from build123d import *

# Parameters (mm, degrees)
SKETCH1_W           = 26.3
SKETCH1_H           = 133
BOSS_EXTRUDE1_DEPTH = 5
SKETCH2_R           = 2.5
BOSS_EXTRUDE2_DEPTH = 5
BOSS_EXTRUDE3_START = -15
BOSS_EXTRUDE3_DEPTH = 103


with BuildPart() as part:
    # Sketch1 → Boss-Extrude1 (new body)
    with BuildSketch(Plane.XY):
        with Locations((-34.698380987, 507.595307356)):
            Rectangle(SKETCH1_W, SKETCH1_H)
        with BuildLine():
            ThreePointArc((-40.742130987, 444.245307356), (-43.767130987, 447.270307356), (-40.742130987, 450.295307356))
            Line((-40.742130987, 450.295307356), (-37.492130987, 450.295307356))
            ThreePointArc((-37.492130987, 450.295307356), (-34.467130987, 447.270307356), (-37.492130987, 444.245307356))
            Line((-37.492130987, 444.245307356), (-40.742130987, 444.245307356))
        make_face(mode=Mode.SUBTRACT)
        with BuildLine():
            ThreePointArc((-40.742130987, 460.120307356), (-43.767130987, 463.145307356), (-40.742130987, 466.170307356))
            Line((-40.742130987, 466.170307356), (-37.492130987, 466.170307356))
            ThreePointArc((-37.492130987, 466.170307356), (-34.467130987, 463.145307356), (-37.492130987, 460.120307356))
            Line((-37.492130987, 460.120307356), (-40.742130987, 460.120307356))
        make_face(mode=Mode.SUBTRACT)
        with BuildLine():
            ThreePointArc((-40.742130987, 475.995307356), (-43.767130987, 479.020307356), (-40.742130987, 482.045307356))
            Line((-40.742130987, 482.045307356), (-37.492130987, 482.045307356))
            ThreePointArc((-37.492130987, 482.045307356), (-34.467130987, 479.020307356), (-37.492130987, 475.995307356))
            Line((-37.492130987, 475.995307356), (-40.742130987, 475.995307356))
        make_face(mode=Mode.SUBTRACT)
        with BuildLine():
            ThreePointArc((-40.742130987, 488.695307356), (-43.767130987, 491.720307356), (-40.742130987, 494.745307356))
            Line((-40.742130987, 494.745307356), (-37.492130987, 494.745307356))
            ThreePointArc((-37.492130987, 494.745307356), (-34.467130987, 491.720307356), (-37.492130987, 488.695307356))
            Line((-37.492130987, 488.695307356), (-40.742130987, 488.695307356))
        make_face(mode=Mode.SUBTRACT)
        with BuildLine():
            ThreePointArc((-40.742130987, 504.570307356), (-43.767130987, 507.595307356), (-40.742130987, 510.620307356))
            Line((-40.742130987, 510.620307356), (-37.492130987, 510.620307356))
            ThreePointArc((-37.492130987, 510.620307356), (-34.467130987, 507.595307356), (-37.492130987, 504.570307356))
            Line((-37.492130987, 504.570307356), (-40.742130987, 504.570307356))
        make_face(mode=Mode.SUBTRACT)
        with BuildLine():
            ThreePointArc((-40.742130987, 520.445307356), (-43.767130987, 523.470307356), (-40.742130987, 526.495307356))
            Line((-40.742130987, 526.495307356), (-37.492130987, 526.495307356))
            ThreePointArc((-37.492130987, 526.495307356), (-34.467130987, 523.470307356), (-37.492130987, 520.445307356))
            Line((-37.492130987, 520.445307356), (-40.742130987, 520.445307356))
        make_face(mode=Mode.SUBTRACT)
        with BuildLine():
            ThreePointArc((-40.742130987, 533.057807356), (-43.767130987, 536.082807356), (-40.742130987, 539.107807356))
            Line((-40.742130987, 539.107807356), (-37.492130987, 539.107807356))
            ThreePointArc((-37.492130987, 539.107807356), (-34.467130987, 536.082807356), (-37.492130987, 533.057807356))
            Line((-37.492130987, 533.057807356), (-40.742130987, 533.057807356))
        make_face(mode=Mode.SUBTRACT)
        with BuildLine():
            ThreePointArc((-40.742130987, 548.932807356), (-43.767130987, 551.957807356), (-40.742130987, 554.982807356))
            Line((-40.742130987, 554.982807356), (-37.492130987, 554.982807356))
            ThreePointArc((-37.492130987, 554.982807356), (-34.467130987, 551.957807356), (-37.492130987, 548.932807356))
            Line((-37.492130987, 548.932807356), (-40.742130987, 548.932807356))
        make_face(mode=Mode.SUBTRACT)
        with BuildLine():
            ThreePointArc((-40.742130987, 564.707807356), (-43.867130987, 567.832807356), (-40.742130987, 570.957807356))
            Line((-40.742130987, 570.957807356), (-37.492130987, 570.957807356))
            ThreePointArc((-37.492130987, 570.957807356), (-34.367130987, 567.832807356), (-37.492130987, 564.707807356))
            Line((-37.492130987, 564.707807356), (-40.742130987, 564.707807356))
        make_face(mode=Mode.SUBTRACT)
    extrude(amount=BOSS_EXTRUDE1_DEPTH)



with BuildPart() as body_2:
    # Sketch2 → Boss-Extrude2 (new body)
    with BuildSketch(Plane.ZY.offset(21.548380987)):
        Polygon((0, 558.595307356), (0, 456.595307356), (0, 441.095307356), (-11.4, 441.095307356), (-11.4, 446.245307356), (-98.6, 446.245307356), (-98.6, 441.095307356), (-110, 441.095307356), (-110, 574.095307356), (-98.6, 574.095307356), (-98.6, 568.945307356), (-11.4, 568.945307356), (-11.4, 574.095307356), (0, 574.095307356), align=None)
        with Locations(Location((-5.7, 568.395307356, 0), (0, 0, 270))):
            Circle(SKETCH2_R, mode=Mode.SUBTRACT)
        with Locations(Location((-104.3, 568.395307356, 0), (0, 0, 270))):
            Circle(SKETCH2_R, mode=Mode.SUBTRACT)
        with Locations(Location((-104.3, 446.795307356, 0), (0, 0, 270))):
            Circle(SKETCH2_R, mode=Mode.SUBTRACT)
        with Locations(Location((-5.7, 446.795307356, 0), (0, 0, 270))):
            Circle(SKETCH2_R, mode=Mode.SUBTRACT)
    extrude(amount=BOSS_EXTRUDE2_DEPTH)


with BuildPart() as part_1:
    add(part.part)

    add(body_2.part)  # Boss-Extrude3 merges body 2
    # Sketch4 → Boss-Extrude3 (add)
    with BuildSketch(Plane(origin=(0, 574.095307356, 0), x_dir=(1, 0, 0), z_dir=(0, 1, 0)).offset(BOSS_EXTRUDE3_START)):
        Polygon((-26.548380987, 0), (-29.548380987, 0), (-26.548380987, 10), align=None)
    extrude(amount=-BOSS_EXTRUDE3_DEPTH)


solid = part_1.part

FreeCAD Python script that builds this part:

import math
import FreeCAD as App
import Part
import Sketcher

V = App.Vector
Q = App.Units.Quantity


def add_polygon(sketch, points):
    """Adds a closed chain of lines whose ends are joined by coincident constraints."""
    first, n = sketch.GeometryCount, len(points)
    for a, b in zip(points, points[1:] + points[:1]):
        sketch.addGeometry(Part.LineSegment(App.Vector(*a, 0), App.Vector(*b, 0)), False)
    for i in range(n):
        sketch.addConstraint(Sketcher.Constraint("Coincident", first + i, 2, first + (i + 1) % n, 1))

doc = App.newDocument("Part")
body = doc.addObject("PartDesign::Body", "Body")

# Sketch on XY plane
sketch1 = body.newObject("Sketcher::SketchObject", "Sketch")
sketch1.AttachmentSupport = (doc.getObject("XY_Plane"), [""])
sketch1.MapMode = "FlatFace"
add_polygon(sketch1, [(-47.848381, 574.095307), (-47.848381, 441.095307), (-21.548381, 441.095307), (-21.548381, 574.095307)])  # lines 0-3
sketch1.addGeometry(Part.LineSegment(V(-37.492131, 444.245307, 0), V(-40.742131, 444.245307, 0)), False)  # 4
sketch1.addGeometry(Part.ArcOfCircle(Part.Circle(V(-40.742131, 447.270307, 0), V(0, 0, 1), 3.025), math.radians(90), math.radians(270)), False)  # 5
sketch1.addGeometry(Part.LineSegment(V(-40.742131, 450.295307, 0), V(-37.492131, 450.295307, 0)), False)  # 6
sketch1.addGeometry(Part.ArcOfCircle(Part.Circle(V(-37.492131, 447.270307, 0), V(0, 0, 1), 3.025), math.radians(-90), math.radians(90)), False)  # 7
sketch1.addGeometry(Part.LineSegment(V(-37.492131, 460.120307, 0), V(-40.742131, 460.120307, 0)), False)  # 8
sketch1.addGeometry(Part.ArcOfCircle(Part.Circle(V(-40.742131, 463.145307, 0), V(0, 0, 1), 3.025), math.radians(90), math.radians(270)), False)  # 9
sketch1.addGeometry(Part.LineSegment(V(-40.742131, 466.170307, 0), V(-37.492131, 466.170307, 0)), False)  # 10
sketch1.addGeometry(Part.ArcOfCircle(Part.Circle(V(-37.492131, 463.145307, 0), V(0, 0, 1), 3.025), math.radians(-90), math.radians(90)), False)  # 11
sketch1.addGeometry(Part.LineSegment(V(-37.492131, 475.995307, 0), V(-40.742131, 475.995307, 0)), False)  # 12
sketch1.addGeometry(Part.ArcOfCircle(Part.Circle(V(-40.742131, 479.020307, 0), V(0, 0, 1), 3.025), math.radians(90), math.radians(270)), False)  # 13
sketch1.addGeometry(Part.LineSegment(V(-40.742131, 482.045307, 0), V(-37.492131, 482.045307, 0)), False)  # 14
sketch1.addGeometry(Part.ArcOfCircle(Part.Circle(V(-37.492131, 479.020307, 0), V(0, 0, 1), 3.025), math.radians(-90), math.radians(90)), False)  # 15
sketch1.addGeometry(Part.LineSegment(V(-37.492131, 488.695307, 0), V(-40.742131, 488.695307, 0)), False)  # 16
sketch1.addGeometry(Part.ArcOfCircle(Part.Circle(V(-40.742131, 491.720307, 0), V(0, 0, 1), 3.025), math.radians(90), math.radians(270)), False)  # 17
sketch1.addGeometry(Part.LineSegment(V(-40.742131, 494.745307, 0), V(-37.492131, 494.745307, 0)), False)  # 18
sketch1.addGeometry(Part.ArcOfCircle(Part.Circle(V(-37.492131, 491.720307, 0), V(0, 0, 1), 3.025), math.radians(-90), math.radians(90)), False)  # 19
sketch1.addGeometry(Part.LineSegment(V(-37.492131, 504.570307, 0), V(-40.742131, 504.570307, 0)), False)  # 20
sketch1.addGeometry(Part.ArcOfCircle(Part.Circle(V(-40.742131, 507.595307, 0), V(0, 0, 1), 3.025), math.radians(90), math.radians(270)), False)  # 21
sketch1.addGeometry(Part.LineSegment(V(-40.742131, 510.620307, 0), V(-37.492131, 510.620307, 0)), False)  # 22
sketch1.addGeometry(Part.ArcOfCircle(Part.Circle(V(-37.492131, 507.595307, 0), V(0, 0, 1), 3.025), math.radians(-90), math.radians(90)), False)  # 23
sketch1.addGeometry(Part.LineSegment(V(-37.492131, 520.445307, 0), V(-40.742131, 520.445307, 0)), False)  # 24
sketch1.addGeometry(Part.ArcOfCircle(Part.Circle(V(-40.742131, 523.470307, 0), V(0, 0, 1), 3.025), math.radians(90), math.radians(270)), False)  # 25
sketch1.addGeometry(Part.LineSegment(V(-40.742131, 526.495307, 0), V(-37.492131, 526.495307, 0)), False)  # 26
sketch1.addGeometry(Part.ArcOfCircle(Part.Circle(V(-37.492131, 523.470307, 0), V(0, 0, 1), 3.025), math.radians(-90), math.radians(90)), False)  # 27
sketch1.addGeometry(Part.LineSegment(V(-37.492131, 533.057807, 0), V(-40.742131, 533.057807, 0)), False)  # 28
sketch1.addGeometry(Part.ArcOfCircle(Part.Circle(V(-40.742131, 536.082807, 0), V(0, 0, 1), 3.025), math.radians(90), math.radians(270)), False)  # 29
sketch1.addGeometry(Part.LineSegment(V(-40.742131, 539.107807, 0), V(-37.492131, 539.107807, 0)), False)  # 30
sketch1.addGeometry(Part.ArcOfCircle(Part.Circle(V(-37.492131, 536.082807, 0), V(0, 0, 1), 3.025), math.radians(-90), math.radians(90)), False)  # 31
sketch1.addGeometry(Part.LineSegment(V(-37.492131, 548.932807, 0), V(-40.742131, 548.932807, 0)), False)  # 32
sketch1.addGeometry(Part.ArcOfCircle(Part.Circle(V(-40.742131, 551.957807, 0), V(0, 0, 1), 3.025), math.radians(90), math.radians(270)), False)  # 33
sketch1.addGeometry(Part.LineSegment(V(-40.742131, 554.982807, 0), V(-37.492131, 554.982807, 0)), False)  # 34
sketch1.addGeometry(Part.ArcOfCircle(Part.Circle(V(-37.492131, 551.957807, 0), V(0, 0, 1), 3.025), math.radians(-90), math.radians(90)), False)  # 35
sketch1.addGeometry(Part.LineSegment(V(-37.492131, 564.707807, 0), V(-40.742131, 564.707807, 0)), False)  # 36
sketch1.addGeometry(Part.ArcOfCircle(Part.Circle(V(-40.742131, 567.832807, 0), V(0, 0, 1), 3.125), math.radians(90), math.radians(270)), False)  # 37
sketch1.addGeometry(Part.LineSegment(V(-40.742131, 570.957807, 0), V(-37.492131, 570.957807, 0)), False)  # 38
sketch1.addGeometry(Part.ArcOfCircle(Part.Circle(V(-37.492131, 567.832807, 0), V(0, 0, 1), 3.125), math.radians(-90), math.radians(90)), False)  # 39
sketch1.addConstraint(Sketcher.Constraint("Tangent", 4, 2, 5, 2))
sketch1.addConstraint(Sketcher.Constraint("Tangent", 5, 1, 6, 1))
sketch1.addConstraint(Sketcher.Constraint("Tangent", 6, 2, 7, 2))
sketch1.addConstraint(Sketcher.Constraint("Tangent", 7, 1, 4, 1))
sketch1.addConstraint(Sketcher.Constraint("Tangent", 8, 2, 9, 2))
sketch1.addConstraint(Sketcher.Constraint("Tangent", 9, 1, 10, 1))
sketch1.addConstraint(Sketcher.Constraint("Tangent", 10, 2, 11, 2))
sketch1.addConstraint(Sketcher.Constraint("Tangent", 11, 1, 8, 1))
sketch1.addConstraint(Sketcher.Constraint("Tangent", 12, 2, 13, 2))
sketch1.addConstraint(Sketcher.Constraint("Tangent", 13, 1, 14, 1))
sketch1.addConstraint(Sketcher.Constraint("Tangent", 14, 2, 15, 2))
sketch1.addConstraint(Sketcher.Constraint("Tangent", 15, 1, 12, 1))
sketch1.addConstraint(Sketcher.Constraint("Tangent", 16, 2, 17, 2))
sketch1.addConstraint(Sketcher.Constraint("Tangent", 17, 1, 18, 1))
sketch1.addConstraint(Sketcher.Constraint("Tangent", 18, 2, 19, 2))
sketch1.addConstraint(Sketcher.Constraint("Tangent", 19, 1, 16, 1))
sketch1.addConstraint(Sketcher.Constraint("Tangent", 20, 2, 21, 2))
sketch1.addConstraint(Sketcher.Constraint("Tangent", 21, 1, 22, 1))
sketch1.addConstraint(Sketcher.Constraint("Tangent", 22, 2, 23, 2))
sketch1.addConstraint(Sketcher.Constraint("Tangent", 23, 1, 20, 1))
sketch1.addConstraint(Sketcher.Constraint("Tangent", 24, 2, 25, 2))
sketch1.addConstraint(Sketcher.Constraint("Tangent", 25, 1, 26, 1))
sketch1.addConstraint(Sketcher.Constraint("Tangent", 26, 2, 27, 2))
sketch1.addConstraint(Sketcher.Constraint("Tangent", 27, 1, 24, 1))
sketch1.addConstraint(Sketcher.Constraint("Tangent", 28, 2, 29, 2))
sketch1.addConstraint(Sketcher.Constraint("Tangent", 29, 1, 30, 1))
sketch1.addConstraint(Sketcher.Constraint("Tangent", 30, 2, 31, 2))
sketch1.addConstraint(Sketcher.Constraint("Tangent", 31, 1, 28, 1))
sketch1.addConstraint(Sketcher.Constraint("Tangent", 32, 2, 33, 2))
sketch1.addConstraint(Sketcher.Constraint("Tangent", 33, 1, 34, 1))
sketch1.addConstraint(Sketcher.Constraint("Tangent", 34, 2, 35, 2))
sketch1.addConstraint(Sketcher.Constraint("Tangent", 35, 1, 32, 1))
sketch1.addConstraint(Sketcher.Constraint("Tangent", 36, 2, 37, 2))
sketch1.addConstraint(Sketcher.Constraint("Tangent", 37, 1, 38, 1))
sketch1.addConstraint(Sketcher.Constraint("Tangent", 38, 2, 39, 2))
sketch1.addConstraint(Sketcher.Constraint("Tangent", 39, 1, 36, 1))
sketch1.addConstraint(Sketcher.Constraint("Vertical", 0))
sketch1.addConstraint(Sketcher.Constraint("Horizontal", 1))
sketch1.addConstraint(Sketcher.Constraint("Vertical", 2))
sketch1.addConstraint(Sketcher.Constraint("Horizontal", 3))
sketch1.addConstraint(Sketcher.Constraint("Horizontal", 4))
sketch1.addConstraint(Sketcher.Constraint("Horizontal", 6))
sketch1.addConstraint(Sketcher.Constraint("Horizontal", 8))
sketch1.addConstraint(Sketcher.Constraint("Horizontal", 10))
sketch1.addConstraint(Sketcher.Constraint("Horizontal", 12))
sketch1.addConstraint(Sketcher.Constraint("Horizontal", 14))
sketch1.addConstraint(Sketcher.Constraint("Horizontal", 16))
sketch1.addConstraint(Sketcher.Constraint("Horizontal", 18))
sketch1.addConstraint(Sketcher.Constraint("Horizontal", 20))
sketch1.addConstraint(Sketcher.Constraint("Horizontal", 22))
sketch1.addConstraint(Sketcher.Constraint("Horizontal", 24))
sketch1.addConstraint(Sketcher.Constraint("Horizontal", 26))
sketch1.addConstraint(Sketcher.Constraint("Horizontal", 28))
sketch1.addConstraint(Sketcher.Constraint("Horizontal", 30))
sketch1.addConstraint(Sketcher.Constraint("Horizontal", 32))
sketch1.addConstraint(Sketcher.Constraint("Horizontal", 34))
sketch1.addConstraint(Sketcher.Constraint("Horizontal", 36))
sketch1.addConstraint(Sketcher.Constraint("Horizontal", 38))
sketch1.addConstraint(Sketcher.Constraint("Equal", 7, 9))
sketch1.addConstraint(Sketcher.Constraint("Equal", 11, 13))
sketch1.addConstraint(Sketcher.Constraint("Equal", 15, 17))
sketch1.addConstraint(Sketcher.Constraint("Equal", 19, 21))
sketch1.addConstraint(Sketcher.Constraint("Equal", 23, 25))
sketch1.addConstraint(Sketcher.Constraint("Equal", 27, 29))
sketch1.addConstraint(Sketcher.Constraint("Equal", 31, 33))
sketch1.addConstraint(Sketcher.Constraint("Vertical", 5, 3, 9, 3))
sketch1.addConstraint(Sketcher.Constraint("Vertical", 7, 3, 11, 3))
sketch1.addConstraint(Sketcher.Constraint("Vertical", 9, 3, 13, 3))
sketch1.addConstraint(Sketcher.Constraint("Vertical", 11, 3, 15, 3))
sketch1.addConstraint(Sketcher.Constraint("Vertical", 13, 3, 17, 3))
sketch1.addConstraint(Sketcher.Constraint("Vertical", 15, 3, 19, 3))
sketch1.addConstraint(Sketcher.Constraint("Vertical", 17, 3, 21, 3))
sketch1.addConstraint(Sketcher.Constraint("Vertical", 19, 3, 23, 3))
sketch1.addConstraint(Sketcher.Constraint("Vertical", 21, 3, 25, 3))
sketch1.addConstraint(Sketcher.Constraint("Vertical", 23, 3, 27, 3))
sketch1.addConstraint(Sketcher.Constraint("Vertical", 25, 3, 29, 3))
sketch1.addConstraint(Sketcher.Constraint("Vertical", 27, 3, 31, 3))
sketch1.addConstraint(Sketcher.Constraint("Vertical", 29, 3, 33, 3))
sketch1.addConstraint(Sketcher.Constraint("Vertical", 31, 3, 35, 3))
sketch1.addConstraint(Sketcher.Constraint("Vertical", 33, 3, 37, 3))
sketch1.addConstraint(Sketcher.Constraint("Vertical", 35, 3, 39, 3))
sketch1.addConstraint(Sketcher.Constraint("DistanceY", 0, 2, 0, 1, Q("133 mm")))
sketch1.addConstraint(Sketcher.Constraint("DistanceX", 1, 1, 1, 2, Q("26.3 mm")))
sketch1.addConstraint(Sketcher.Constraint("Radius", 5, Q("3.025 mm")))
sketch1.addConstraint(Sketcher.Constraint("Radius", 37, Q("3.125 mm")))
sketch1.addConstraint(Sketcher.Constraint("DistanceX", 4, 2, 4, 1, Q("3.25 mm")))
sketch1.addConstraint(Sketcher.Constraint("DistanceY", 13, 3, 17, 3, Q("12.7 mm")))
sketch1.addConstraint(Sketcher.Constraint("DistanceY", 4, 2, 9, 3, Q("18.9 mm")))
sketch1.addConstraint(Sketcher.Constraint("DistanceY", 0, 2, 5, 1, Q("9.2 mm")))
sketch1.addConstraint(Sketcher.Constraint("DistanceY", 5, 3, 13, 3, Q("31.75 mm")))
sketch1.addConstraint(Sketcher.Constraint("DistanceY", 9, 3, 21, 3, Q("44.45 mm")))
sketch1.addConstraint(Sketcher.Constraint("DistanceY", 17, 3, 25, 3, Q("31.75 mm")))
sketch1.addConstraint(Sketcher.Constraint("DistanceY", 29, 3, 37, 3, Q("31.75 mm")))
sketch1.addConstraint(Sketcher.Constraint("DistanceY", 29, 1, 33, 3, Q("12.85 mm")))
sketch1.addConstraint(Sketcher.Constraint("DistanceY", 25, 3, 29, 3, Q("12.6125 mm")))
sketch1.addConstraint(Sketcher.Constraint("DistanceX", 5, 3, -1, 1, Q("40.742131 mm")))
sketch1.addConstraint(Sketcher.Constraint("DistanceX", 0, 2, -1, 1, Q("47.848381 mm")))
sketch1.addConstraint(Sketcher.Constraint("DistanceY", -1, 1, 5, 3, Q("447.270307 mm")))
pad1 = body.newObject("PartDesign::Pad", "Pad")
pad1.Profile = sketch1
pad1.Length = 5
body2 = doc.addObject("PartDesign::Body", "Body001")

# Sketch on YZ plane
sketch2 = body2.newObject("Sketcher::SketchObject", "Sketch001")
sketch2.AttachmentSupport = (doc.getObject("YZ_Plane001"), [""])
sketch2.MapMode = "FlatFace"
sketch2.AttachmentOffset = App.Placement(V(0, 0, -21.548381), App.Rotation())
add_polygon(sketch2, [(441.095307, 0), (574.095307, 0), (574.095307, -11.4), (568.945307, -11.4), (568.945307, -98.6), (574.095307, -98.6), (574.095307, -110), (441.095307, -110), (441.095307, -98.6), (446.245307, -98.6), (446.245307, -11.4), (441.095307, -11.4)])  # lines 0-11
sketch2.addGeometry(Part.Circle(V(446.795307, -5.7, 0), V(0, 0, 1), 2.5), False)  # 12
sketch2.addGeometry(Part.Circle(V(446.795307, -104.3, 0), V(0, 0, 1), 2.5), False)  # 13
sketch2.addGeometry(Part.Circle(V(568.395307, -5.7, 0), V(0, 0, 1), 2.5), False)  # 14
sketch2.addGeometry(Part.Circle(V(568.395307, -104.3, 0), V(0, 0, 1), 2.5), False)  # 15
sketch2.addConstraint(Sketcher.Constraint("Horizontal", 0))
sketch2.addConstraint(Sketcher.Constraint("Vertical", 1))
sketch2.addConstraint(Sketcher.Constraint("Horizontal", 2))
sketch2.addConstraint(Sketcher.Constraint("Vertical", 3))
sketch2.addConstraint(Sketcher.Constraint("Horizontal", 4))
sketch2.addConstraint(Sketcher.Constraint("Vertical", 5))
sketch2.addConstraint(Sketcher.Constraint("Horizontal", 6))
sketch2.addConstraint(Sketcher.Constraint("Vertical", 7))
sketch2.addConstraint(Sketcher.Constraint("Horizontal", 8))
sketch2.addConstraint(Sketcher.Constraint("Vertical", 9))
sketch2.addConstraint(Sketcher.Constraint("Horizontal", 10))
sketch2.addConstraint(Sketcher.Constraint("Vertical", 11))
sketch2.addConstraint(Sketcher.Constraint("Equal", 12, 13))
sketch2.addConstraint(Sketcher.Constraint("Equal", 13, 14))
sketch2.addConstraint(Sketcher.Constraint("Equal", 14, 15))
sketch2.addConstraint(Sketcher.Constraint("PointOnObject", 0, 2, -1))
sketch2.addConstraint(Sketcher.Constraint("Horizontal", 12, 3, 14, 3))
sketch2.addConstraint(Sketcher.Constraint("Horizontal", 13, 3, 15, 3))
sketch2.addConstraint(Sketcher.Constraint("Horizontal", 4, 2, 7, 2))
sketch2.addConstraint(Sketcher.Constraint("Horizontal", 2, 2, 9, 2))
sketch2.addConstraint(Sketcher.Constraint("Vertical", 12, 3, 13, 3))
sketch2.addConstraint(Sketcher.Constraint("Vertical", 14, 3, 15, 3))
sketch2.addConstraint(Sketcher.Constraint("Vertical", 1, 2, 4, 2))
sketch2.addConstraint(Sketcher.Constraint("Vertical", 7, 2, 10, 2))
sketch2.addConstraint(Sketcher.Constraint("Equal", 4, 8))
sketch2.addConstraint(Sketcher.Constraint("Equal", 1, 5))
sketch2.addConstraint(Sketcher.Constraint("Diameter", 12, Q("5 mm")))
sketch2.addConstraint(Sketcher.Constraint("DistanceX", 0, 1, 0, 2, Q("133 mm")))
sketch2.addConstraint(Sketcher.Constraint("DistanceY", 1, 2, 1, 1, Q("11.4 mm")))
sketch2.addConstraint(Sketcher.Constraint("DistanceY", 3, 2, 3, 1, Q("87.2 mm")))
sketch2.addConstraint(Sketcher.Constraint("DistanceX", 2, 2, 2, 1, Q("5.15 mm")))
sketch2.addConstraint(Sketcher.Constraint("DistanceY", 12, 3, -1, 1, Q("5.7 mm")))
sketch2.addConstraint(Sketcher.Constraint("DistanceY", 13, 3, -1, 1, Q("104.3 mm")))
sketch2.addConstraint(Sketcher.Constraint("DistanceX", 12, 3, 14, 3, Q("121.6 mm")))
sketch2.addConstraint(Sketcher.Constraint("DistanceX", 14, 3, 0, 2, Q("5.7 mm")))
sketch2.addConstraint(Sketcher.Constraint("DistanceX", -1, 1, 12, 3, Q("446.795307 mm")))
pad2 = body2.newObject("PartDesign::Pad", "Pad001")
pad2.Profile = sketch2
pad2.Length = 5
pad2.Reversed = True
doc.recompute()

boolean = body.newObject("PartDesign::Boolean", "Boolean")
boolean.Type = "Fuse"
boolean.addObjects([body2])

# Sketch on XZ plane
sketch3 = body.newObject("Sketcher::SketchObject", "Sketch002")
sketch3.AttachmentSupport = (doc.getObject("XZ_Plane"), [""])
sketch3.MapMode = "FlatFace"
sketch3.AttachmentOffset = App.Placement(V(0, 0, -559.095307), App.Rotation())
add_polygon(sketch3, [(-29.548381, 0), (-26.548381, 0), (-26.548381, -10)])  # lines 0-2
sketch3.addConstraint(Sketcher.Constraint("Horizontal", 0))
sketch3.addConstraint(Sketcher.Constraint("Vertical", 1))
sketch3.addConstraint(Sketcher.Constraint("PointOnObject", 0, 2, -1))
sketch3.addConstraint(Sketcher.Constraint("DistanceX", 0, 1, 0, 2, Q("3 mm")))
sketch3.addConstraint(Sketcher.Constraint("DistanceY", 1, 2, 1, 1, Q("10 mm")))
sketch3.addConstraint(Sketcher.Constraint("DistanceX", 0, 2, -1, 1, Q("26.548381 mm")))
pad3 = body.newObject("PartDesign::Pad", "Pad002")
pad3.Profile = sketch3
pad3.Length = 103

doc.recompute()
